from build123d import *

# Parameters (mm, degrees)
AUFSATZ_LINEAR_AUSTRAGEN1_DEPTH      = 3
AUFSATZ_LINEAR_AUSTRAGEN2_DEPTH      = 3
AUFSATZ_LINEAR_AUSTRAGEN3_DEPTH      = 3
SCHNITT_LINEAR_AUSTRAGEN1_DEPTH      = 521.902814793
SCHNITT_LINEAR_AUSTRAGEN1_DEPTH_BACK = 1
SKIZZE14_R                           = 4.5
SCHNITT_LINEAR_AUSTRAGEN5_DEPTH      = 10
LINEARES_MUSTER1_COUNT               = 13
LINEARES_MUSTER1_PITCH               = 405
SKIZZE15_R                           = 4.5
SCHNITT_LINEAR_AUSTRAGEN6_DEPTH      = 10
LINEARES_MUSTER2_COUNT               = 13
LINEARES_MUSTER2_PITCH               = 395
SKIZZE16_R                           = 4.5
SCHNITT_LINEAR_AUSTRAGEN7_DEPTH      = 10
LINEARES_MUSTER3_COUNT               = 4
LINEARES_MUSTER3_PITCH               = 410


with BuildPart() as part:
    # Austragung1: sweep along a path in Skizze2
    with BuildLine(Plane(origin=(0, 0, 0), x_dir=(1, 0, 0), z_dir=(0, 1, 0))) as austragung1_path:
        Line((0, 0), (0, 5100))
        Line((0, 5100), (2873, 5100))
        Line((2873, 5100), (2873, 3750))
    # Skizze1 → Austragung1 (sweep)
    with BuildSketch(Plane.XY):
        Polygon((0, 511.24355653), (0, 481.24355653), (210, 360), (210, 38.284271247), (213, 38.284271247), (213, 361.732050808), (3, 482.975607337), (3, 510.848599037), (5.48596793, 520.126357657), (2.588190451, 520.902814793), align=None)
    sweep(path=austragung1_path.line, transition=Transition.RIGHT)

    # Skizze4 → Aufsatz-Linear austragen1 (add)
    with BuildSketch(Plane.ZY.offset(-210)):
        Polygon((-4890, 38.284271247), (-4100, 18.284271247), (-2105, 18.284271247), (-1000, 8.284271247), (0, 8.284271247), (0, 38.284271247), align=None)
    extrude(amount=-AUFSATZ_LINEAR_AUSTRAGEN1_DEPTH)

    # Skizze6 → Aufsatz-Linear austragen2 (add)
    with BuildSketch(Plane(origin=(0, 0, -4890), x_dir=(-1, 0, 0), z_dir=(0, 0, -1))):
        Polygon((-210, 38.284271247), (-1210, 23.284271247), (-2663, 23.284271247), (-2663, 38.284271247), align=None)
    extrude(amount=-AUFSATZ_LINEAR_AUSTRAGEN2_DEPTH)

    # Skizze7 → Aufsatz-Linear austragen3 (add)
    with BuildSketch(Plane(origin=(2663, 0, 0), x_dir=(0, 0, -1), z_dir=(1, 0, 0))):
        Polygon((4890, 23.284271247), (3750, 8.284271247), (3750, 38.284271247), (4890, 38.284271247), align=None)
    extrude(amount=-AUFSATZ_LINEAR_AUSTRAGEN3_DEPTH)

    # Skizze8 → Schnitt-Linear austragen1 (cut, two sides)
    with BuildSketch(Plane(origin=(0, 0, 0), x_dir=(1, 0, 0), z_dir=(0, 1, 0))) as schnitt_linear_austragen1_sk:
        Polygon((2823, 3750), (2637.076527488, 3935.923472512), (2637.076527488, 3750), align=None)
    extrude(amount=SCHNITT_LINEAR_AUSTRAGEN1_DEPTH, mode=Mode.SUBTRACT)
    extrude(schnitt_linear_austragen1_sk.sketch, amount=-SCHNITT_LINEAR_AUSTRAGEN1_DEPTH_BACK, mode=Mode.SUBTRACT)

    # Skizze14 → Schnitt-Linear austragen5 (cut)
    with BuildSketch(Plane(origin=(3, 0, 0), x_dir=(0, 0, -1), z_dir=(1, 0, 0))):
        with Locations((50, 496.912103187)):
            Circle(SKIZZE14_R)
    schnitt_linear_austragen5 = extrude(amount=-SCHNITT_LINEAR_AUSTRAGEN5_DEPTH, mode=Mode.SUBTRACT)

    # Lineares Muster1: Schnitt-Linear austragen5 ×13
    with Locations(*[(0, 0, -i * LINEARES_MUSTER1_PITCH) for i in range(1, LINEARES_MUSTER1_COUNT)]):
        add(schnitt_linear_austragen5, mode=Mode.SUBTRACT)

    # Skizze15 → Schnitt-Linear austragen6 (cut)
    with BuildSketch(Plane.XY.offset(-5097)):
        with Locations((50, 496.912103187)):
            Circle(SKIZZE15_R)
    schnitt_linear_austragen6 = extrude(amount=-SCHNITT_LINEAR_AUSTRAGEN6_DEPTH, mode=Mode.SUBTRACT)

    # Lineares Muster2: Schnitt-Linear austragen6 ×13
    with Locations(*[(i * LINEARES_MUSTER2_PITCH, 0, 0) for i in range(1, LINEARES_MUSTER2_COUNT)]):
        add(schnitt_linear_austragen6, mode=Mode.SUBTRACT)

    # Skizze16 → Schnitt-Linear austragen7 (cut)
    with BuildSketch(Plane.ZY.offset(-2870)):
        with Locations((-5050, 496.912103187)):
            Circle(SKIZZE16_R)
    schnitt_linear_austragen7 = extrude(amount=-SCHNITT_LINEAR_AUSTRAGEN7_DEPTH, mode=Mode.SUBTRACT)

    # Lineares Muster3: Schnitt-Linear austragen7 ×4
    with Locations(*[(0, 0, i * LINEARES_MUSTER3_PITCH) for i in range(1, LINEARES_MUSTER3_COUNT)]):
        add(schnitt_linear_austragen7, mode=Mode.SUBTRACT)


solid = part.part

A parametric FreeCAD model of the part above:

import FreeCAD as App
import Part
import Sketcher

V = App.Vector
Q = App.Units.Quantity


def add_polygon(sketch, points):
    """Adds a closed chain of lines whose ends are joined by coincident constraints."""
    first, n = sketch.GeometryCount, len(points)
    for a, b in zip(points, points[1:] + points[:1]):
        sketch.addGeometry(Part.LineSegment(App.Vector(*a, 0), App.Vector(*b, 0)), False)
    for i in range(n):
        sketch.addConstraint(Sketcher.Constraint("Coincident", first + i, 2, first + (i + 1) % n, 1))

doc = App.newDocument("Part")
params = doc.addObject("Spreadsheet::Sheet", "Params")
for row, (alias, value) in enumerate([
    ("sketch1_width", "3 mm"),
    ("sketch1_height", "30 mm"),
    ("sketch1_length", "3 mm"),
    ("sketch1_length2", "10 mm"),
    ("sketch2_width", "2873 mm"),
    ("sketch2_height", "5100 mm"),
    ("sketch2_height2", "1350 mm"),
    ("sketch3_width", "30 mm"),
    ("sketch3_height", "1995 mm"),
    ("sketch3_height2", "1000 mm"),
    ("sketch3_height3", "4890 mm"),
    ("pad1_length", "3 mm"),
    ("sketch4_width", "2453 mm"),
    ("sketch4_width2", "1453 mm"),
    ("sketch4_height", "15 mm"),
    ("pad2_length", "3 mm"),
    ("sketch5_width", "15 mm"),
    ("sketch5_width2", "30 mm"),
    ("sketch5_height", "1140 mm"),
    ("pad3_length", "3 mm"),
    ("sketch7_diameter", "9 mm"),
    ("pocket2_length", "10 mm"),
    ("linearpattern_pitch", "405 mm"),
    ("sketch8_diameter", "9 mm"),
    ("pocket3_length", "10 mm"),
    ("linearpattern2_pitch", "395 mm"),
    ("sketch9_diameter", "9 mm"),
    ("pocket4_length", "10 mm"),
    ("linearpattern3_pitch", "410 mm"),
], start=1):
    params.set(f"A{row}", alias)
    params.set(f"B{row}", "=" + value)
    params.setAlias(f"B{row}", alias)

body = doc.addObject("PartDesign::Body", "Body")

# Sketch on XY plane
sketch1 = doc.addObject("Sketcher::SketchObject", "Sketch")
body.addObject(sketch1)
sketch1.AttachmentSupport = (doc.XY_Plane, [""])
sketch1.MapMode = "FlatFace"
add_polygon(sketch1, [(0, 511.243557), (0, 481.243557), (210, 360), (210, 38.284271), (213, 38.284271), (213, 361.732051), (3, 482.975607), (3, 510.848599), (5.485968, 520.126358), (2.58819, 520.902815)])  # lines 0-9
sketch1.addConstraint([
    Sketcher.Constraint("Vertical", 0),
    Sketcher.Constraint("Vertical", 2),
    Sketcher.Constraint("Horizontal", 3),
    Sketcher.Constraint("Vertical", 4),
    Sketcher.Constraint("Vertical", 6),
    Sketcher.Constraint("PointOnObject", 0, 2, -2),
    Sketcher.Constraint("Parallel", 1, 5),
    Sketcher.Constraint("Perpendicular", 7, 8),
    Sketcher.Constraint("Perpendicular", 8, 9),
    Sketcher.Constraint("Equal", 1, 5),
    Sketcher.Constraint("DistanceX", 3, 1, 3, 2, Q("3 mm")),
    Sketcher.Constraint("DistanceY", 0, 2, 0, 1, Q("30 mm")),
    Sketcher.Constraint("Angle", 1, Q("-30 deg")),
    Sketcher.Constraint("Angle", 7, Q("75 deg")),
    Sketcher.Constraint("Distance", 8, Q("3 mm")),
    Sketcher.Constraint("Distance", 9, Q("10 mm")),
    Sketcher.Constraint("DistanceX", -1, 1, 1, 2, Q("210 mm")),
    Sketcher.Constraint("DistanceY", -1, 1, 1, 2, Q("360 mm")),
    Sketcher.Constraint("DistanceY", 2, 2, 2, 1, Q("321.715729 mm")),
    Sketcher.Constraint("DistanceY", 4, 1, 4, 2, Q("323.44778 mm")),
])
sketch1.setExpression("Constraints[20]", "Params.sketch1_width")
sketch1.setExpression("Constraints[21]", "Params.sketch1_height")
sketch1.setExpression("Constraints[24]", "Params.sketch1_length")
sketch1.setExpression("Constraints[25]", "Params.sketch1_length2")

# Sketch on XZ plane
sketch2 = doc.addObject("Sketcher::SketchObject", "Sketch001")
body.addObject(sketch2)
sketch2.AttachmentSupport = (doc.XZ_Plane, [""])
sketch2.MapMode = "FlatFace"
sketch2.addGeometry([
    Part.LineSegment(V(0, 0, 0), V(0, -5100, 0)),
    Part.LineSegment(V(0, -5100, 0), V(2873, -5100, 0)),
    Part.LineSegment(V(2873, -5100, 0), V(2873, -3750, 0)),
], False)
sketch2.addConstraint([
    Sketcher.Constraint("Coincident", 0, 2, 1, 1),
    Sketcher.Constraint("Coincident", 1, 2, 2, 1),
    Sketcher.Constraint("Vertical", 0),
    Sketcher.Constraint("Horizontal", 1),
    Sketcher.Constraint("Vertical", 2),
    Sketcher.Constraint("Coincident", 0, 1, -1, 1),
    Sketcher.Constraint("DistanceX", 1, 1, 1, 2, Q("2873 mm")),
    Sketcher.Constraint("DistanceY", 0, 2, 0, 1, Q("5100 mm")),
    Sketcher.Constraint("DistanceY", 2, 1, 2, 2, Q("1350 mm")),
])
sketch2.setExpression("Constraints[6]", "Params.sketch2_width")
sketch2.setExpression("Constraints[7]", "Params.sketch2_height")
sketch2.setExpression("Constraints[8]", "Params.sketch2_height2")
doc.recompute()

additivepipe = doc.addObject("PartDesign::AdditivePipe", "AdditivePipe")
body.addObject(additivepipe)
additivepipe.Profile = sketch1
additivepipe.Spine = (sketch2, ["Edge1", "Edge2", "Edge3"])
additivepipe.Transition = "Right corner"

# Sketch on YZ plane
sketch3 = doc.addObject("Sketcher::SketchObject", "Sketch002")
body.addObject(sketch3)
sketch3.AttachmentSupport = (doc.YZ_Plane, [""])
sketch3.MapMode = "FlatFace"
sketch3.AttachmentOffset = App.Placement(V(0, 0, 210), App.Rotation())
add_polygon(sketch3, [(38.284271, -4890), (18.284271, -4100), (18.284271, -2105), (8.284271, -1000), (8.284271, 0), (38.284271, 0)])  # lines 0-5
sketch3.addConstraint([
    Sketcher.Constraint("Vertical", 1),
    Sketcher.Constraint("Vertical", 3),
    Sketcher.Constraint("Horizontal", 4),
    Sketcher.Constraint("Vertical", 5),
    Sketcher.Constraint("PointOnObject", 3, 2, -1),
    Sketcher.Constraint("DistanceX", 4, 1, 4, 2, Q("30 mm")),
    Sketcher.Constraint("DistanceY", 1, 1, 1, 2, Q("1995 mm")),
    Sketcher.Constraint("DistanceY", 3, 1, 3, 2, Q("1000 mm")),
    Sketcher.Constraint("DistanceY", 5, 2, 5, 1, Q("4890 mm")),
    Sketcher.Constraint("DistanceY", 0, 2, -1, 1, Q("4100 mm")),
    Sketcher.Constraint("DistanceX", 2, 2, 1, 2, Q("10 mm")),
    Sketcher.Constraint("DistanceX", -1, 1, 0, 2, Q("18.284271 mm")),
])
sketch3.setExpression("Constraints[11]", "Params.sketch3_width")
sketch3.setExpression("Constraints[12]", "Params.sketch3_height")
sketch3.setExpression("Constraints[13]", "Params.sketch3_height2")
sketch3.setExpression("Constraints[14]", "Params.sketch3_height3")
pad1 = doc.addObject("PartDesign::Pad", "Pad")
body.addObject(pad1)
pad1.Profile = sketch3
pad1.setExpression("Length", "Params.pad1_length")

# Sketch on XY plane
sketch4 = doc.addObject("Sketcher::SketchObject", "Sketch003")
body.addObject(sketch4)
sketch4.AttachmentSupport = (doc.XY_Plane, [""])
sketch4.MapMode = "FlatFace"
sketch4.AttachmentOffset = App.Placement(V(0, 0, -4890), App.Rotation())
add_polygon(sketch4, [(1210, 23.284271), (210, 38.284271), (2663, 38.284271), (2663, 23.284271)])  # lines 0-3
sketch4.addConstraint([
    Sketcher.Constraint("Horizontal", 1),
    Sketcher.Constraint("Vertical", 2),
    Sketcher.Constraint("Horizontal", 3),
    Sketcher.Constraint("DistanceX", 1, 1, 1, 2, Q("2453 mm")),
    Sketcher.Constraint("DistanceX", 3, 2, 3, 1, Q("1453 mm")),
    Sketcher.Constraint("DistanceY", 2, 2, 2, 1, Q("15 mm")),
    Sketcher.Constraint("DistanceX", -1, 1, 0, 2, Q("210 mm")),
    Sketcher.Constraint("DistanceY", -1, 1, 0, 2, Q("38.284271 mm")),
])
sketch4.setExpression("Constraints[7]", "Params.sketch4_width")
sketch4.setExpression("Constraints[8]", "Params.sketch4_width2")
sketch4.setExpression("Constraints[9]", "Params.sketch4_height")
pad2 = doc.addObject("PartDesign::Pad", "Pad001")
body.addObject(pad2)
pad2.Profile = sketch4
pad2.setExpression("Length", "Params.pad2_length")

# Sketch on YZ plane
sketch5 = doc.addObject("Sketcher::SketchObject", "Sketch004")
body.addObject(sketch5)
sketch5.AttachmentSupport = (doc.YZ_Plane, [""])
sketch5.MapMode = "FlatFace"
sketch5.AttachmentOffset = App.Placement(V(0, 0, 2663), App.Rotation())
add_polygon(sketch5, [(8.284271, -3750), (23.284271, -4890), (38.284271, -4890), (38.284271, -3750)])  # lines 0-3
sketch5.addConstraint([
    Sketcher.Constraint("Horizontal", 1),
    Sketcher.Constraint("Vertical", 2),
    Sketcher.Constraint("Horizontal", 3),
    Sketcher.Constraint("DistanceX", 1, 1, 1, 2, Q("15 mm")),
    Sketcher.Constraint("DistanceX", 3, 2, 3, 1, Q("30 mm")),
    Sketcher.Constraint("DistanceY", 2, 1, 2, 2, Q("1140 mm")),
    Sketcher.Constraint("DistanceY", 0, 2, -1, 1, Q("4890 mm")),
    Sketcher.Constraint("DistanceX", -1, 1, 0, 2, Q("23.284271 mm")),
])
sketch5.setExpression("Constraints[7]", "Params.sketch5_width")
sketch5.setExpression("Constraints[8]", "Params.sketch5_width2")
sketch5.setExpression("Constraints[9]", "Params.sketch5_height")
pad3 = doc.addObject("PartDesign::Pad", "Pad002")
body.addObject(pad3)
pad3.Profile = sketch5
pad3.setExpression("Length", "Params.pad3_length")
pad3.Reversed = True

# Sketch on XZ plane
sketch6 = doc.addObject("Sketcher::SketchObject", "Sketch005")
body.addObject(sketch6)
sketch6.AttachmentSupport = (doc.XZ_Plane, [""])
sketch6.MapMode = "FlatFace"
add_polygon(sketch6, [(2823, -3750), (2637.076527, -3935.923473), (2637.076527, -3750)])  # lines 0-2
sketch6.addConstraint([
    Sketcher.Constraint("Vertical", 1),
    Sketcher.Constraint("Horizontal", 2),
    Sketcher.Constraint("Equal", 2, 1),
    Sketcher.Constraint("DistanceY", 1, 2, -1, 1, Q("3750 mm")),
    Sketcher.Constraint("DistanceX", -1, 1, 2, 2, Q("2823 mm")),
    Sketcher.Constraint("DistanceX", 2, 1, 2, 2, Q("185.923473 mm")),
])
pocket1 = doc.addObject("PartDesign::Pocket", "Pocket")
body.addObject(pocket1)
pocket1.Profile = sketch6
pocket1.Type = "ThroughAll"
pocket1.Midplane = True

# Sketch on YZ plane
sketch7 = doc.addObject("Sketcher::SketchObject", "Sketch006")
body.addObject(sketch7)
sketch7.AttachmentSupport = (doc.YZ_Plane, [""])
sketch7.MapMode = "FlatFace"
sketch7.AttachmentOffset = App.Placement(V(0, 0, 3), App.Rotation())
sketch7.addGeometry(Part.Circle(V(496.912103, -50, 0), V(0, 0, 1), 4.5), False)
sketch7.addConstraint([
    Sketcher.Constraint("Diameter", 0, Q("9 mm")),
    Sketcher.Constraint("DistanceY", 0, 3, -1, 1, Q("50 mm")),
    Sketcher.Constraint("DistanceX", -1, 1, 0, 3, Q("496.912103 mm")),
])
sketch7.setExpression("Constraints[0]", "Params.sketch7_diameter")
pocket2 = doc.addObject("PartDesign::Pocket", "Pocket001")
body.addObject(pocket2)
pocket2.Profile = sketch7
pocket2.setExpression("Length", "Params.pocket2_length")
doc.recompute()

linearpattern = doc.addObject("PartDesign::LinearPattern", "LinearPattern")
body.addObject(linearpattern)
linearpattern.Originals = [pocket2]
linearpattern.Direction = (doc.Z_Axis, [""])
linearpattern.Mode = "offset"
linearpattern.setExpression("Offset", "Params.linearpattern_pitch")
linearpattern.Occurrences = 13
linearpattern.Reversed = True
body.Tip = linearpattern

# Sketch on XY plane
sketch8 = doc.addObject("Sketcher::SketchObject", "Sketch007")
body.addObject(sketch8)
sketch8.AttachmentSupport = (doc.XY_Plane, [""])
sketch8.MapMode = "FlatFace"
sketch8.AttachmentOffset = App.Placement(V(0, 0, -5097), App.Rotation())
sketch8.addGeometry(Part.Circle(V(50, 496.912103, 0), V(0, 0, 1), 4.5), False)
sketch8.addConstraint([
    Sketcher.Constraint("Diameter", 0, Q("9 mm")),
    Sketcher.Constraint("DistanceX", -1, 1, 0, 3, Q("50 mm")),
    Sketcher.Constraint("DistanceY", -1, 1, 0, 3, Q("496.912103 mm")),
])
sketch8.setExpression("Constraints[0]", "Params.sketch8_diameter")
pocket3 = doc.addObject("PartDesign::Pocket", "Pocket002")
body.addObject(pocket3)
pocket3.Profile = sketch8
pocket3.setExpression("Length", "Params.pocket3_length")
doc.recompute()

linearpattern2 = doc.addObject("PartDesign::LinearPattern", "LinearPattern001")
body.addObject(linearpattern2)
linearpattern2.Originals = [pocket3]
linearpattern2.Direction = (doc.X_Axis, [""])
linearpattern2.Mode = "offset"
linearpattern2.setExpression("Offset", "Params.linearpattern2_pitch")
linearpattern2.Occurrences = 13
body.Tip = linearpattern2

# Sketch on YZ plane
sketch9 = doc.addObject("Sketcher::SketchObject", "Sketch008")
body.addObject(sketch9)
sketch9.AttachmentSupport = (doc.YZ_Plane, [""])
sketch9.MapMode = "FlatFace"
sketch9.AttachmentOffset = App.Placement(V(0, 0, 2870), App.Rotation())
sketch9.addGeometry(Part.Circle(V(496.912103, -5050, 0), V(0, 0, 1), 4.5), False)
sketch9.addConstraint([
    Sketcher.Constraint("Diameter", 0, Q("9 mm")),
    Sketcher.Constraint("DistanceY", 0, 3, -1, 1, Q("5050 mm")),
    Sketcher.Constraint("DistanceX", -1, 1, 0, 3, Q("496.912103 mm")),
])
sketch9.setExpression("Constraints[0]", "Params.sketch9_diameter")
pocket4 = doc.addObject("PartDesign::Pocket", "Pocket003")
body.addObject(pocket4)
pocket4.Profile = sketch9
pocket4.setExpression("Length", "Params.pocket4_length")
pocket4.Reversed = True
doc.recompute()

linearpattern3 = doc.addObject("PartDesign::LinearPattern", "LinearPattern002")
body.addObject(linearpattern3)
linearpattern3.Originals = [pocket4]
linearpattern3.Direction = (doc.Z_Axis, [""])
linearpattern3.Mode = "offset"
linearpattern3.setExpression("Offset", "Params.linearpattern3_pitch")
linearpattern3.Occurrences = 4
body.Tip = linearpattern3

doc.recompute()
